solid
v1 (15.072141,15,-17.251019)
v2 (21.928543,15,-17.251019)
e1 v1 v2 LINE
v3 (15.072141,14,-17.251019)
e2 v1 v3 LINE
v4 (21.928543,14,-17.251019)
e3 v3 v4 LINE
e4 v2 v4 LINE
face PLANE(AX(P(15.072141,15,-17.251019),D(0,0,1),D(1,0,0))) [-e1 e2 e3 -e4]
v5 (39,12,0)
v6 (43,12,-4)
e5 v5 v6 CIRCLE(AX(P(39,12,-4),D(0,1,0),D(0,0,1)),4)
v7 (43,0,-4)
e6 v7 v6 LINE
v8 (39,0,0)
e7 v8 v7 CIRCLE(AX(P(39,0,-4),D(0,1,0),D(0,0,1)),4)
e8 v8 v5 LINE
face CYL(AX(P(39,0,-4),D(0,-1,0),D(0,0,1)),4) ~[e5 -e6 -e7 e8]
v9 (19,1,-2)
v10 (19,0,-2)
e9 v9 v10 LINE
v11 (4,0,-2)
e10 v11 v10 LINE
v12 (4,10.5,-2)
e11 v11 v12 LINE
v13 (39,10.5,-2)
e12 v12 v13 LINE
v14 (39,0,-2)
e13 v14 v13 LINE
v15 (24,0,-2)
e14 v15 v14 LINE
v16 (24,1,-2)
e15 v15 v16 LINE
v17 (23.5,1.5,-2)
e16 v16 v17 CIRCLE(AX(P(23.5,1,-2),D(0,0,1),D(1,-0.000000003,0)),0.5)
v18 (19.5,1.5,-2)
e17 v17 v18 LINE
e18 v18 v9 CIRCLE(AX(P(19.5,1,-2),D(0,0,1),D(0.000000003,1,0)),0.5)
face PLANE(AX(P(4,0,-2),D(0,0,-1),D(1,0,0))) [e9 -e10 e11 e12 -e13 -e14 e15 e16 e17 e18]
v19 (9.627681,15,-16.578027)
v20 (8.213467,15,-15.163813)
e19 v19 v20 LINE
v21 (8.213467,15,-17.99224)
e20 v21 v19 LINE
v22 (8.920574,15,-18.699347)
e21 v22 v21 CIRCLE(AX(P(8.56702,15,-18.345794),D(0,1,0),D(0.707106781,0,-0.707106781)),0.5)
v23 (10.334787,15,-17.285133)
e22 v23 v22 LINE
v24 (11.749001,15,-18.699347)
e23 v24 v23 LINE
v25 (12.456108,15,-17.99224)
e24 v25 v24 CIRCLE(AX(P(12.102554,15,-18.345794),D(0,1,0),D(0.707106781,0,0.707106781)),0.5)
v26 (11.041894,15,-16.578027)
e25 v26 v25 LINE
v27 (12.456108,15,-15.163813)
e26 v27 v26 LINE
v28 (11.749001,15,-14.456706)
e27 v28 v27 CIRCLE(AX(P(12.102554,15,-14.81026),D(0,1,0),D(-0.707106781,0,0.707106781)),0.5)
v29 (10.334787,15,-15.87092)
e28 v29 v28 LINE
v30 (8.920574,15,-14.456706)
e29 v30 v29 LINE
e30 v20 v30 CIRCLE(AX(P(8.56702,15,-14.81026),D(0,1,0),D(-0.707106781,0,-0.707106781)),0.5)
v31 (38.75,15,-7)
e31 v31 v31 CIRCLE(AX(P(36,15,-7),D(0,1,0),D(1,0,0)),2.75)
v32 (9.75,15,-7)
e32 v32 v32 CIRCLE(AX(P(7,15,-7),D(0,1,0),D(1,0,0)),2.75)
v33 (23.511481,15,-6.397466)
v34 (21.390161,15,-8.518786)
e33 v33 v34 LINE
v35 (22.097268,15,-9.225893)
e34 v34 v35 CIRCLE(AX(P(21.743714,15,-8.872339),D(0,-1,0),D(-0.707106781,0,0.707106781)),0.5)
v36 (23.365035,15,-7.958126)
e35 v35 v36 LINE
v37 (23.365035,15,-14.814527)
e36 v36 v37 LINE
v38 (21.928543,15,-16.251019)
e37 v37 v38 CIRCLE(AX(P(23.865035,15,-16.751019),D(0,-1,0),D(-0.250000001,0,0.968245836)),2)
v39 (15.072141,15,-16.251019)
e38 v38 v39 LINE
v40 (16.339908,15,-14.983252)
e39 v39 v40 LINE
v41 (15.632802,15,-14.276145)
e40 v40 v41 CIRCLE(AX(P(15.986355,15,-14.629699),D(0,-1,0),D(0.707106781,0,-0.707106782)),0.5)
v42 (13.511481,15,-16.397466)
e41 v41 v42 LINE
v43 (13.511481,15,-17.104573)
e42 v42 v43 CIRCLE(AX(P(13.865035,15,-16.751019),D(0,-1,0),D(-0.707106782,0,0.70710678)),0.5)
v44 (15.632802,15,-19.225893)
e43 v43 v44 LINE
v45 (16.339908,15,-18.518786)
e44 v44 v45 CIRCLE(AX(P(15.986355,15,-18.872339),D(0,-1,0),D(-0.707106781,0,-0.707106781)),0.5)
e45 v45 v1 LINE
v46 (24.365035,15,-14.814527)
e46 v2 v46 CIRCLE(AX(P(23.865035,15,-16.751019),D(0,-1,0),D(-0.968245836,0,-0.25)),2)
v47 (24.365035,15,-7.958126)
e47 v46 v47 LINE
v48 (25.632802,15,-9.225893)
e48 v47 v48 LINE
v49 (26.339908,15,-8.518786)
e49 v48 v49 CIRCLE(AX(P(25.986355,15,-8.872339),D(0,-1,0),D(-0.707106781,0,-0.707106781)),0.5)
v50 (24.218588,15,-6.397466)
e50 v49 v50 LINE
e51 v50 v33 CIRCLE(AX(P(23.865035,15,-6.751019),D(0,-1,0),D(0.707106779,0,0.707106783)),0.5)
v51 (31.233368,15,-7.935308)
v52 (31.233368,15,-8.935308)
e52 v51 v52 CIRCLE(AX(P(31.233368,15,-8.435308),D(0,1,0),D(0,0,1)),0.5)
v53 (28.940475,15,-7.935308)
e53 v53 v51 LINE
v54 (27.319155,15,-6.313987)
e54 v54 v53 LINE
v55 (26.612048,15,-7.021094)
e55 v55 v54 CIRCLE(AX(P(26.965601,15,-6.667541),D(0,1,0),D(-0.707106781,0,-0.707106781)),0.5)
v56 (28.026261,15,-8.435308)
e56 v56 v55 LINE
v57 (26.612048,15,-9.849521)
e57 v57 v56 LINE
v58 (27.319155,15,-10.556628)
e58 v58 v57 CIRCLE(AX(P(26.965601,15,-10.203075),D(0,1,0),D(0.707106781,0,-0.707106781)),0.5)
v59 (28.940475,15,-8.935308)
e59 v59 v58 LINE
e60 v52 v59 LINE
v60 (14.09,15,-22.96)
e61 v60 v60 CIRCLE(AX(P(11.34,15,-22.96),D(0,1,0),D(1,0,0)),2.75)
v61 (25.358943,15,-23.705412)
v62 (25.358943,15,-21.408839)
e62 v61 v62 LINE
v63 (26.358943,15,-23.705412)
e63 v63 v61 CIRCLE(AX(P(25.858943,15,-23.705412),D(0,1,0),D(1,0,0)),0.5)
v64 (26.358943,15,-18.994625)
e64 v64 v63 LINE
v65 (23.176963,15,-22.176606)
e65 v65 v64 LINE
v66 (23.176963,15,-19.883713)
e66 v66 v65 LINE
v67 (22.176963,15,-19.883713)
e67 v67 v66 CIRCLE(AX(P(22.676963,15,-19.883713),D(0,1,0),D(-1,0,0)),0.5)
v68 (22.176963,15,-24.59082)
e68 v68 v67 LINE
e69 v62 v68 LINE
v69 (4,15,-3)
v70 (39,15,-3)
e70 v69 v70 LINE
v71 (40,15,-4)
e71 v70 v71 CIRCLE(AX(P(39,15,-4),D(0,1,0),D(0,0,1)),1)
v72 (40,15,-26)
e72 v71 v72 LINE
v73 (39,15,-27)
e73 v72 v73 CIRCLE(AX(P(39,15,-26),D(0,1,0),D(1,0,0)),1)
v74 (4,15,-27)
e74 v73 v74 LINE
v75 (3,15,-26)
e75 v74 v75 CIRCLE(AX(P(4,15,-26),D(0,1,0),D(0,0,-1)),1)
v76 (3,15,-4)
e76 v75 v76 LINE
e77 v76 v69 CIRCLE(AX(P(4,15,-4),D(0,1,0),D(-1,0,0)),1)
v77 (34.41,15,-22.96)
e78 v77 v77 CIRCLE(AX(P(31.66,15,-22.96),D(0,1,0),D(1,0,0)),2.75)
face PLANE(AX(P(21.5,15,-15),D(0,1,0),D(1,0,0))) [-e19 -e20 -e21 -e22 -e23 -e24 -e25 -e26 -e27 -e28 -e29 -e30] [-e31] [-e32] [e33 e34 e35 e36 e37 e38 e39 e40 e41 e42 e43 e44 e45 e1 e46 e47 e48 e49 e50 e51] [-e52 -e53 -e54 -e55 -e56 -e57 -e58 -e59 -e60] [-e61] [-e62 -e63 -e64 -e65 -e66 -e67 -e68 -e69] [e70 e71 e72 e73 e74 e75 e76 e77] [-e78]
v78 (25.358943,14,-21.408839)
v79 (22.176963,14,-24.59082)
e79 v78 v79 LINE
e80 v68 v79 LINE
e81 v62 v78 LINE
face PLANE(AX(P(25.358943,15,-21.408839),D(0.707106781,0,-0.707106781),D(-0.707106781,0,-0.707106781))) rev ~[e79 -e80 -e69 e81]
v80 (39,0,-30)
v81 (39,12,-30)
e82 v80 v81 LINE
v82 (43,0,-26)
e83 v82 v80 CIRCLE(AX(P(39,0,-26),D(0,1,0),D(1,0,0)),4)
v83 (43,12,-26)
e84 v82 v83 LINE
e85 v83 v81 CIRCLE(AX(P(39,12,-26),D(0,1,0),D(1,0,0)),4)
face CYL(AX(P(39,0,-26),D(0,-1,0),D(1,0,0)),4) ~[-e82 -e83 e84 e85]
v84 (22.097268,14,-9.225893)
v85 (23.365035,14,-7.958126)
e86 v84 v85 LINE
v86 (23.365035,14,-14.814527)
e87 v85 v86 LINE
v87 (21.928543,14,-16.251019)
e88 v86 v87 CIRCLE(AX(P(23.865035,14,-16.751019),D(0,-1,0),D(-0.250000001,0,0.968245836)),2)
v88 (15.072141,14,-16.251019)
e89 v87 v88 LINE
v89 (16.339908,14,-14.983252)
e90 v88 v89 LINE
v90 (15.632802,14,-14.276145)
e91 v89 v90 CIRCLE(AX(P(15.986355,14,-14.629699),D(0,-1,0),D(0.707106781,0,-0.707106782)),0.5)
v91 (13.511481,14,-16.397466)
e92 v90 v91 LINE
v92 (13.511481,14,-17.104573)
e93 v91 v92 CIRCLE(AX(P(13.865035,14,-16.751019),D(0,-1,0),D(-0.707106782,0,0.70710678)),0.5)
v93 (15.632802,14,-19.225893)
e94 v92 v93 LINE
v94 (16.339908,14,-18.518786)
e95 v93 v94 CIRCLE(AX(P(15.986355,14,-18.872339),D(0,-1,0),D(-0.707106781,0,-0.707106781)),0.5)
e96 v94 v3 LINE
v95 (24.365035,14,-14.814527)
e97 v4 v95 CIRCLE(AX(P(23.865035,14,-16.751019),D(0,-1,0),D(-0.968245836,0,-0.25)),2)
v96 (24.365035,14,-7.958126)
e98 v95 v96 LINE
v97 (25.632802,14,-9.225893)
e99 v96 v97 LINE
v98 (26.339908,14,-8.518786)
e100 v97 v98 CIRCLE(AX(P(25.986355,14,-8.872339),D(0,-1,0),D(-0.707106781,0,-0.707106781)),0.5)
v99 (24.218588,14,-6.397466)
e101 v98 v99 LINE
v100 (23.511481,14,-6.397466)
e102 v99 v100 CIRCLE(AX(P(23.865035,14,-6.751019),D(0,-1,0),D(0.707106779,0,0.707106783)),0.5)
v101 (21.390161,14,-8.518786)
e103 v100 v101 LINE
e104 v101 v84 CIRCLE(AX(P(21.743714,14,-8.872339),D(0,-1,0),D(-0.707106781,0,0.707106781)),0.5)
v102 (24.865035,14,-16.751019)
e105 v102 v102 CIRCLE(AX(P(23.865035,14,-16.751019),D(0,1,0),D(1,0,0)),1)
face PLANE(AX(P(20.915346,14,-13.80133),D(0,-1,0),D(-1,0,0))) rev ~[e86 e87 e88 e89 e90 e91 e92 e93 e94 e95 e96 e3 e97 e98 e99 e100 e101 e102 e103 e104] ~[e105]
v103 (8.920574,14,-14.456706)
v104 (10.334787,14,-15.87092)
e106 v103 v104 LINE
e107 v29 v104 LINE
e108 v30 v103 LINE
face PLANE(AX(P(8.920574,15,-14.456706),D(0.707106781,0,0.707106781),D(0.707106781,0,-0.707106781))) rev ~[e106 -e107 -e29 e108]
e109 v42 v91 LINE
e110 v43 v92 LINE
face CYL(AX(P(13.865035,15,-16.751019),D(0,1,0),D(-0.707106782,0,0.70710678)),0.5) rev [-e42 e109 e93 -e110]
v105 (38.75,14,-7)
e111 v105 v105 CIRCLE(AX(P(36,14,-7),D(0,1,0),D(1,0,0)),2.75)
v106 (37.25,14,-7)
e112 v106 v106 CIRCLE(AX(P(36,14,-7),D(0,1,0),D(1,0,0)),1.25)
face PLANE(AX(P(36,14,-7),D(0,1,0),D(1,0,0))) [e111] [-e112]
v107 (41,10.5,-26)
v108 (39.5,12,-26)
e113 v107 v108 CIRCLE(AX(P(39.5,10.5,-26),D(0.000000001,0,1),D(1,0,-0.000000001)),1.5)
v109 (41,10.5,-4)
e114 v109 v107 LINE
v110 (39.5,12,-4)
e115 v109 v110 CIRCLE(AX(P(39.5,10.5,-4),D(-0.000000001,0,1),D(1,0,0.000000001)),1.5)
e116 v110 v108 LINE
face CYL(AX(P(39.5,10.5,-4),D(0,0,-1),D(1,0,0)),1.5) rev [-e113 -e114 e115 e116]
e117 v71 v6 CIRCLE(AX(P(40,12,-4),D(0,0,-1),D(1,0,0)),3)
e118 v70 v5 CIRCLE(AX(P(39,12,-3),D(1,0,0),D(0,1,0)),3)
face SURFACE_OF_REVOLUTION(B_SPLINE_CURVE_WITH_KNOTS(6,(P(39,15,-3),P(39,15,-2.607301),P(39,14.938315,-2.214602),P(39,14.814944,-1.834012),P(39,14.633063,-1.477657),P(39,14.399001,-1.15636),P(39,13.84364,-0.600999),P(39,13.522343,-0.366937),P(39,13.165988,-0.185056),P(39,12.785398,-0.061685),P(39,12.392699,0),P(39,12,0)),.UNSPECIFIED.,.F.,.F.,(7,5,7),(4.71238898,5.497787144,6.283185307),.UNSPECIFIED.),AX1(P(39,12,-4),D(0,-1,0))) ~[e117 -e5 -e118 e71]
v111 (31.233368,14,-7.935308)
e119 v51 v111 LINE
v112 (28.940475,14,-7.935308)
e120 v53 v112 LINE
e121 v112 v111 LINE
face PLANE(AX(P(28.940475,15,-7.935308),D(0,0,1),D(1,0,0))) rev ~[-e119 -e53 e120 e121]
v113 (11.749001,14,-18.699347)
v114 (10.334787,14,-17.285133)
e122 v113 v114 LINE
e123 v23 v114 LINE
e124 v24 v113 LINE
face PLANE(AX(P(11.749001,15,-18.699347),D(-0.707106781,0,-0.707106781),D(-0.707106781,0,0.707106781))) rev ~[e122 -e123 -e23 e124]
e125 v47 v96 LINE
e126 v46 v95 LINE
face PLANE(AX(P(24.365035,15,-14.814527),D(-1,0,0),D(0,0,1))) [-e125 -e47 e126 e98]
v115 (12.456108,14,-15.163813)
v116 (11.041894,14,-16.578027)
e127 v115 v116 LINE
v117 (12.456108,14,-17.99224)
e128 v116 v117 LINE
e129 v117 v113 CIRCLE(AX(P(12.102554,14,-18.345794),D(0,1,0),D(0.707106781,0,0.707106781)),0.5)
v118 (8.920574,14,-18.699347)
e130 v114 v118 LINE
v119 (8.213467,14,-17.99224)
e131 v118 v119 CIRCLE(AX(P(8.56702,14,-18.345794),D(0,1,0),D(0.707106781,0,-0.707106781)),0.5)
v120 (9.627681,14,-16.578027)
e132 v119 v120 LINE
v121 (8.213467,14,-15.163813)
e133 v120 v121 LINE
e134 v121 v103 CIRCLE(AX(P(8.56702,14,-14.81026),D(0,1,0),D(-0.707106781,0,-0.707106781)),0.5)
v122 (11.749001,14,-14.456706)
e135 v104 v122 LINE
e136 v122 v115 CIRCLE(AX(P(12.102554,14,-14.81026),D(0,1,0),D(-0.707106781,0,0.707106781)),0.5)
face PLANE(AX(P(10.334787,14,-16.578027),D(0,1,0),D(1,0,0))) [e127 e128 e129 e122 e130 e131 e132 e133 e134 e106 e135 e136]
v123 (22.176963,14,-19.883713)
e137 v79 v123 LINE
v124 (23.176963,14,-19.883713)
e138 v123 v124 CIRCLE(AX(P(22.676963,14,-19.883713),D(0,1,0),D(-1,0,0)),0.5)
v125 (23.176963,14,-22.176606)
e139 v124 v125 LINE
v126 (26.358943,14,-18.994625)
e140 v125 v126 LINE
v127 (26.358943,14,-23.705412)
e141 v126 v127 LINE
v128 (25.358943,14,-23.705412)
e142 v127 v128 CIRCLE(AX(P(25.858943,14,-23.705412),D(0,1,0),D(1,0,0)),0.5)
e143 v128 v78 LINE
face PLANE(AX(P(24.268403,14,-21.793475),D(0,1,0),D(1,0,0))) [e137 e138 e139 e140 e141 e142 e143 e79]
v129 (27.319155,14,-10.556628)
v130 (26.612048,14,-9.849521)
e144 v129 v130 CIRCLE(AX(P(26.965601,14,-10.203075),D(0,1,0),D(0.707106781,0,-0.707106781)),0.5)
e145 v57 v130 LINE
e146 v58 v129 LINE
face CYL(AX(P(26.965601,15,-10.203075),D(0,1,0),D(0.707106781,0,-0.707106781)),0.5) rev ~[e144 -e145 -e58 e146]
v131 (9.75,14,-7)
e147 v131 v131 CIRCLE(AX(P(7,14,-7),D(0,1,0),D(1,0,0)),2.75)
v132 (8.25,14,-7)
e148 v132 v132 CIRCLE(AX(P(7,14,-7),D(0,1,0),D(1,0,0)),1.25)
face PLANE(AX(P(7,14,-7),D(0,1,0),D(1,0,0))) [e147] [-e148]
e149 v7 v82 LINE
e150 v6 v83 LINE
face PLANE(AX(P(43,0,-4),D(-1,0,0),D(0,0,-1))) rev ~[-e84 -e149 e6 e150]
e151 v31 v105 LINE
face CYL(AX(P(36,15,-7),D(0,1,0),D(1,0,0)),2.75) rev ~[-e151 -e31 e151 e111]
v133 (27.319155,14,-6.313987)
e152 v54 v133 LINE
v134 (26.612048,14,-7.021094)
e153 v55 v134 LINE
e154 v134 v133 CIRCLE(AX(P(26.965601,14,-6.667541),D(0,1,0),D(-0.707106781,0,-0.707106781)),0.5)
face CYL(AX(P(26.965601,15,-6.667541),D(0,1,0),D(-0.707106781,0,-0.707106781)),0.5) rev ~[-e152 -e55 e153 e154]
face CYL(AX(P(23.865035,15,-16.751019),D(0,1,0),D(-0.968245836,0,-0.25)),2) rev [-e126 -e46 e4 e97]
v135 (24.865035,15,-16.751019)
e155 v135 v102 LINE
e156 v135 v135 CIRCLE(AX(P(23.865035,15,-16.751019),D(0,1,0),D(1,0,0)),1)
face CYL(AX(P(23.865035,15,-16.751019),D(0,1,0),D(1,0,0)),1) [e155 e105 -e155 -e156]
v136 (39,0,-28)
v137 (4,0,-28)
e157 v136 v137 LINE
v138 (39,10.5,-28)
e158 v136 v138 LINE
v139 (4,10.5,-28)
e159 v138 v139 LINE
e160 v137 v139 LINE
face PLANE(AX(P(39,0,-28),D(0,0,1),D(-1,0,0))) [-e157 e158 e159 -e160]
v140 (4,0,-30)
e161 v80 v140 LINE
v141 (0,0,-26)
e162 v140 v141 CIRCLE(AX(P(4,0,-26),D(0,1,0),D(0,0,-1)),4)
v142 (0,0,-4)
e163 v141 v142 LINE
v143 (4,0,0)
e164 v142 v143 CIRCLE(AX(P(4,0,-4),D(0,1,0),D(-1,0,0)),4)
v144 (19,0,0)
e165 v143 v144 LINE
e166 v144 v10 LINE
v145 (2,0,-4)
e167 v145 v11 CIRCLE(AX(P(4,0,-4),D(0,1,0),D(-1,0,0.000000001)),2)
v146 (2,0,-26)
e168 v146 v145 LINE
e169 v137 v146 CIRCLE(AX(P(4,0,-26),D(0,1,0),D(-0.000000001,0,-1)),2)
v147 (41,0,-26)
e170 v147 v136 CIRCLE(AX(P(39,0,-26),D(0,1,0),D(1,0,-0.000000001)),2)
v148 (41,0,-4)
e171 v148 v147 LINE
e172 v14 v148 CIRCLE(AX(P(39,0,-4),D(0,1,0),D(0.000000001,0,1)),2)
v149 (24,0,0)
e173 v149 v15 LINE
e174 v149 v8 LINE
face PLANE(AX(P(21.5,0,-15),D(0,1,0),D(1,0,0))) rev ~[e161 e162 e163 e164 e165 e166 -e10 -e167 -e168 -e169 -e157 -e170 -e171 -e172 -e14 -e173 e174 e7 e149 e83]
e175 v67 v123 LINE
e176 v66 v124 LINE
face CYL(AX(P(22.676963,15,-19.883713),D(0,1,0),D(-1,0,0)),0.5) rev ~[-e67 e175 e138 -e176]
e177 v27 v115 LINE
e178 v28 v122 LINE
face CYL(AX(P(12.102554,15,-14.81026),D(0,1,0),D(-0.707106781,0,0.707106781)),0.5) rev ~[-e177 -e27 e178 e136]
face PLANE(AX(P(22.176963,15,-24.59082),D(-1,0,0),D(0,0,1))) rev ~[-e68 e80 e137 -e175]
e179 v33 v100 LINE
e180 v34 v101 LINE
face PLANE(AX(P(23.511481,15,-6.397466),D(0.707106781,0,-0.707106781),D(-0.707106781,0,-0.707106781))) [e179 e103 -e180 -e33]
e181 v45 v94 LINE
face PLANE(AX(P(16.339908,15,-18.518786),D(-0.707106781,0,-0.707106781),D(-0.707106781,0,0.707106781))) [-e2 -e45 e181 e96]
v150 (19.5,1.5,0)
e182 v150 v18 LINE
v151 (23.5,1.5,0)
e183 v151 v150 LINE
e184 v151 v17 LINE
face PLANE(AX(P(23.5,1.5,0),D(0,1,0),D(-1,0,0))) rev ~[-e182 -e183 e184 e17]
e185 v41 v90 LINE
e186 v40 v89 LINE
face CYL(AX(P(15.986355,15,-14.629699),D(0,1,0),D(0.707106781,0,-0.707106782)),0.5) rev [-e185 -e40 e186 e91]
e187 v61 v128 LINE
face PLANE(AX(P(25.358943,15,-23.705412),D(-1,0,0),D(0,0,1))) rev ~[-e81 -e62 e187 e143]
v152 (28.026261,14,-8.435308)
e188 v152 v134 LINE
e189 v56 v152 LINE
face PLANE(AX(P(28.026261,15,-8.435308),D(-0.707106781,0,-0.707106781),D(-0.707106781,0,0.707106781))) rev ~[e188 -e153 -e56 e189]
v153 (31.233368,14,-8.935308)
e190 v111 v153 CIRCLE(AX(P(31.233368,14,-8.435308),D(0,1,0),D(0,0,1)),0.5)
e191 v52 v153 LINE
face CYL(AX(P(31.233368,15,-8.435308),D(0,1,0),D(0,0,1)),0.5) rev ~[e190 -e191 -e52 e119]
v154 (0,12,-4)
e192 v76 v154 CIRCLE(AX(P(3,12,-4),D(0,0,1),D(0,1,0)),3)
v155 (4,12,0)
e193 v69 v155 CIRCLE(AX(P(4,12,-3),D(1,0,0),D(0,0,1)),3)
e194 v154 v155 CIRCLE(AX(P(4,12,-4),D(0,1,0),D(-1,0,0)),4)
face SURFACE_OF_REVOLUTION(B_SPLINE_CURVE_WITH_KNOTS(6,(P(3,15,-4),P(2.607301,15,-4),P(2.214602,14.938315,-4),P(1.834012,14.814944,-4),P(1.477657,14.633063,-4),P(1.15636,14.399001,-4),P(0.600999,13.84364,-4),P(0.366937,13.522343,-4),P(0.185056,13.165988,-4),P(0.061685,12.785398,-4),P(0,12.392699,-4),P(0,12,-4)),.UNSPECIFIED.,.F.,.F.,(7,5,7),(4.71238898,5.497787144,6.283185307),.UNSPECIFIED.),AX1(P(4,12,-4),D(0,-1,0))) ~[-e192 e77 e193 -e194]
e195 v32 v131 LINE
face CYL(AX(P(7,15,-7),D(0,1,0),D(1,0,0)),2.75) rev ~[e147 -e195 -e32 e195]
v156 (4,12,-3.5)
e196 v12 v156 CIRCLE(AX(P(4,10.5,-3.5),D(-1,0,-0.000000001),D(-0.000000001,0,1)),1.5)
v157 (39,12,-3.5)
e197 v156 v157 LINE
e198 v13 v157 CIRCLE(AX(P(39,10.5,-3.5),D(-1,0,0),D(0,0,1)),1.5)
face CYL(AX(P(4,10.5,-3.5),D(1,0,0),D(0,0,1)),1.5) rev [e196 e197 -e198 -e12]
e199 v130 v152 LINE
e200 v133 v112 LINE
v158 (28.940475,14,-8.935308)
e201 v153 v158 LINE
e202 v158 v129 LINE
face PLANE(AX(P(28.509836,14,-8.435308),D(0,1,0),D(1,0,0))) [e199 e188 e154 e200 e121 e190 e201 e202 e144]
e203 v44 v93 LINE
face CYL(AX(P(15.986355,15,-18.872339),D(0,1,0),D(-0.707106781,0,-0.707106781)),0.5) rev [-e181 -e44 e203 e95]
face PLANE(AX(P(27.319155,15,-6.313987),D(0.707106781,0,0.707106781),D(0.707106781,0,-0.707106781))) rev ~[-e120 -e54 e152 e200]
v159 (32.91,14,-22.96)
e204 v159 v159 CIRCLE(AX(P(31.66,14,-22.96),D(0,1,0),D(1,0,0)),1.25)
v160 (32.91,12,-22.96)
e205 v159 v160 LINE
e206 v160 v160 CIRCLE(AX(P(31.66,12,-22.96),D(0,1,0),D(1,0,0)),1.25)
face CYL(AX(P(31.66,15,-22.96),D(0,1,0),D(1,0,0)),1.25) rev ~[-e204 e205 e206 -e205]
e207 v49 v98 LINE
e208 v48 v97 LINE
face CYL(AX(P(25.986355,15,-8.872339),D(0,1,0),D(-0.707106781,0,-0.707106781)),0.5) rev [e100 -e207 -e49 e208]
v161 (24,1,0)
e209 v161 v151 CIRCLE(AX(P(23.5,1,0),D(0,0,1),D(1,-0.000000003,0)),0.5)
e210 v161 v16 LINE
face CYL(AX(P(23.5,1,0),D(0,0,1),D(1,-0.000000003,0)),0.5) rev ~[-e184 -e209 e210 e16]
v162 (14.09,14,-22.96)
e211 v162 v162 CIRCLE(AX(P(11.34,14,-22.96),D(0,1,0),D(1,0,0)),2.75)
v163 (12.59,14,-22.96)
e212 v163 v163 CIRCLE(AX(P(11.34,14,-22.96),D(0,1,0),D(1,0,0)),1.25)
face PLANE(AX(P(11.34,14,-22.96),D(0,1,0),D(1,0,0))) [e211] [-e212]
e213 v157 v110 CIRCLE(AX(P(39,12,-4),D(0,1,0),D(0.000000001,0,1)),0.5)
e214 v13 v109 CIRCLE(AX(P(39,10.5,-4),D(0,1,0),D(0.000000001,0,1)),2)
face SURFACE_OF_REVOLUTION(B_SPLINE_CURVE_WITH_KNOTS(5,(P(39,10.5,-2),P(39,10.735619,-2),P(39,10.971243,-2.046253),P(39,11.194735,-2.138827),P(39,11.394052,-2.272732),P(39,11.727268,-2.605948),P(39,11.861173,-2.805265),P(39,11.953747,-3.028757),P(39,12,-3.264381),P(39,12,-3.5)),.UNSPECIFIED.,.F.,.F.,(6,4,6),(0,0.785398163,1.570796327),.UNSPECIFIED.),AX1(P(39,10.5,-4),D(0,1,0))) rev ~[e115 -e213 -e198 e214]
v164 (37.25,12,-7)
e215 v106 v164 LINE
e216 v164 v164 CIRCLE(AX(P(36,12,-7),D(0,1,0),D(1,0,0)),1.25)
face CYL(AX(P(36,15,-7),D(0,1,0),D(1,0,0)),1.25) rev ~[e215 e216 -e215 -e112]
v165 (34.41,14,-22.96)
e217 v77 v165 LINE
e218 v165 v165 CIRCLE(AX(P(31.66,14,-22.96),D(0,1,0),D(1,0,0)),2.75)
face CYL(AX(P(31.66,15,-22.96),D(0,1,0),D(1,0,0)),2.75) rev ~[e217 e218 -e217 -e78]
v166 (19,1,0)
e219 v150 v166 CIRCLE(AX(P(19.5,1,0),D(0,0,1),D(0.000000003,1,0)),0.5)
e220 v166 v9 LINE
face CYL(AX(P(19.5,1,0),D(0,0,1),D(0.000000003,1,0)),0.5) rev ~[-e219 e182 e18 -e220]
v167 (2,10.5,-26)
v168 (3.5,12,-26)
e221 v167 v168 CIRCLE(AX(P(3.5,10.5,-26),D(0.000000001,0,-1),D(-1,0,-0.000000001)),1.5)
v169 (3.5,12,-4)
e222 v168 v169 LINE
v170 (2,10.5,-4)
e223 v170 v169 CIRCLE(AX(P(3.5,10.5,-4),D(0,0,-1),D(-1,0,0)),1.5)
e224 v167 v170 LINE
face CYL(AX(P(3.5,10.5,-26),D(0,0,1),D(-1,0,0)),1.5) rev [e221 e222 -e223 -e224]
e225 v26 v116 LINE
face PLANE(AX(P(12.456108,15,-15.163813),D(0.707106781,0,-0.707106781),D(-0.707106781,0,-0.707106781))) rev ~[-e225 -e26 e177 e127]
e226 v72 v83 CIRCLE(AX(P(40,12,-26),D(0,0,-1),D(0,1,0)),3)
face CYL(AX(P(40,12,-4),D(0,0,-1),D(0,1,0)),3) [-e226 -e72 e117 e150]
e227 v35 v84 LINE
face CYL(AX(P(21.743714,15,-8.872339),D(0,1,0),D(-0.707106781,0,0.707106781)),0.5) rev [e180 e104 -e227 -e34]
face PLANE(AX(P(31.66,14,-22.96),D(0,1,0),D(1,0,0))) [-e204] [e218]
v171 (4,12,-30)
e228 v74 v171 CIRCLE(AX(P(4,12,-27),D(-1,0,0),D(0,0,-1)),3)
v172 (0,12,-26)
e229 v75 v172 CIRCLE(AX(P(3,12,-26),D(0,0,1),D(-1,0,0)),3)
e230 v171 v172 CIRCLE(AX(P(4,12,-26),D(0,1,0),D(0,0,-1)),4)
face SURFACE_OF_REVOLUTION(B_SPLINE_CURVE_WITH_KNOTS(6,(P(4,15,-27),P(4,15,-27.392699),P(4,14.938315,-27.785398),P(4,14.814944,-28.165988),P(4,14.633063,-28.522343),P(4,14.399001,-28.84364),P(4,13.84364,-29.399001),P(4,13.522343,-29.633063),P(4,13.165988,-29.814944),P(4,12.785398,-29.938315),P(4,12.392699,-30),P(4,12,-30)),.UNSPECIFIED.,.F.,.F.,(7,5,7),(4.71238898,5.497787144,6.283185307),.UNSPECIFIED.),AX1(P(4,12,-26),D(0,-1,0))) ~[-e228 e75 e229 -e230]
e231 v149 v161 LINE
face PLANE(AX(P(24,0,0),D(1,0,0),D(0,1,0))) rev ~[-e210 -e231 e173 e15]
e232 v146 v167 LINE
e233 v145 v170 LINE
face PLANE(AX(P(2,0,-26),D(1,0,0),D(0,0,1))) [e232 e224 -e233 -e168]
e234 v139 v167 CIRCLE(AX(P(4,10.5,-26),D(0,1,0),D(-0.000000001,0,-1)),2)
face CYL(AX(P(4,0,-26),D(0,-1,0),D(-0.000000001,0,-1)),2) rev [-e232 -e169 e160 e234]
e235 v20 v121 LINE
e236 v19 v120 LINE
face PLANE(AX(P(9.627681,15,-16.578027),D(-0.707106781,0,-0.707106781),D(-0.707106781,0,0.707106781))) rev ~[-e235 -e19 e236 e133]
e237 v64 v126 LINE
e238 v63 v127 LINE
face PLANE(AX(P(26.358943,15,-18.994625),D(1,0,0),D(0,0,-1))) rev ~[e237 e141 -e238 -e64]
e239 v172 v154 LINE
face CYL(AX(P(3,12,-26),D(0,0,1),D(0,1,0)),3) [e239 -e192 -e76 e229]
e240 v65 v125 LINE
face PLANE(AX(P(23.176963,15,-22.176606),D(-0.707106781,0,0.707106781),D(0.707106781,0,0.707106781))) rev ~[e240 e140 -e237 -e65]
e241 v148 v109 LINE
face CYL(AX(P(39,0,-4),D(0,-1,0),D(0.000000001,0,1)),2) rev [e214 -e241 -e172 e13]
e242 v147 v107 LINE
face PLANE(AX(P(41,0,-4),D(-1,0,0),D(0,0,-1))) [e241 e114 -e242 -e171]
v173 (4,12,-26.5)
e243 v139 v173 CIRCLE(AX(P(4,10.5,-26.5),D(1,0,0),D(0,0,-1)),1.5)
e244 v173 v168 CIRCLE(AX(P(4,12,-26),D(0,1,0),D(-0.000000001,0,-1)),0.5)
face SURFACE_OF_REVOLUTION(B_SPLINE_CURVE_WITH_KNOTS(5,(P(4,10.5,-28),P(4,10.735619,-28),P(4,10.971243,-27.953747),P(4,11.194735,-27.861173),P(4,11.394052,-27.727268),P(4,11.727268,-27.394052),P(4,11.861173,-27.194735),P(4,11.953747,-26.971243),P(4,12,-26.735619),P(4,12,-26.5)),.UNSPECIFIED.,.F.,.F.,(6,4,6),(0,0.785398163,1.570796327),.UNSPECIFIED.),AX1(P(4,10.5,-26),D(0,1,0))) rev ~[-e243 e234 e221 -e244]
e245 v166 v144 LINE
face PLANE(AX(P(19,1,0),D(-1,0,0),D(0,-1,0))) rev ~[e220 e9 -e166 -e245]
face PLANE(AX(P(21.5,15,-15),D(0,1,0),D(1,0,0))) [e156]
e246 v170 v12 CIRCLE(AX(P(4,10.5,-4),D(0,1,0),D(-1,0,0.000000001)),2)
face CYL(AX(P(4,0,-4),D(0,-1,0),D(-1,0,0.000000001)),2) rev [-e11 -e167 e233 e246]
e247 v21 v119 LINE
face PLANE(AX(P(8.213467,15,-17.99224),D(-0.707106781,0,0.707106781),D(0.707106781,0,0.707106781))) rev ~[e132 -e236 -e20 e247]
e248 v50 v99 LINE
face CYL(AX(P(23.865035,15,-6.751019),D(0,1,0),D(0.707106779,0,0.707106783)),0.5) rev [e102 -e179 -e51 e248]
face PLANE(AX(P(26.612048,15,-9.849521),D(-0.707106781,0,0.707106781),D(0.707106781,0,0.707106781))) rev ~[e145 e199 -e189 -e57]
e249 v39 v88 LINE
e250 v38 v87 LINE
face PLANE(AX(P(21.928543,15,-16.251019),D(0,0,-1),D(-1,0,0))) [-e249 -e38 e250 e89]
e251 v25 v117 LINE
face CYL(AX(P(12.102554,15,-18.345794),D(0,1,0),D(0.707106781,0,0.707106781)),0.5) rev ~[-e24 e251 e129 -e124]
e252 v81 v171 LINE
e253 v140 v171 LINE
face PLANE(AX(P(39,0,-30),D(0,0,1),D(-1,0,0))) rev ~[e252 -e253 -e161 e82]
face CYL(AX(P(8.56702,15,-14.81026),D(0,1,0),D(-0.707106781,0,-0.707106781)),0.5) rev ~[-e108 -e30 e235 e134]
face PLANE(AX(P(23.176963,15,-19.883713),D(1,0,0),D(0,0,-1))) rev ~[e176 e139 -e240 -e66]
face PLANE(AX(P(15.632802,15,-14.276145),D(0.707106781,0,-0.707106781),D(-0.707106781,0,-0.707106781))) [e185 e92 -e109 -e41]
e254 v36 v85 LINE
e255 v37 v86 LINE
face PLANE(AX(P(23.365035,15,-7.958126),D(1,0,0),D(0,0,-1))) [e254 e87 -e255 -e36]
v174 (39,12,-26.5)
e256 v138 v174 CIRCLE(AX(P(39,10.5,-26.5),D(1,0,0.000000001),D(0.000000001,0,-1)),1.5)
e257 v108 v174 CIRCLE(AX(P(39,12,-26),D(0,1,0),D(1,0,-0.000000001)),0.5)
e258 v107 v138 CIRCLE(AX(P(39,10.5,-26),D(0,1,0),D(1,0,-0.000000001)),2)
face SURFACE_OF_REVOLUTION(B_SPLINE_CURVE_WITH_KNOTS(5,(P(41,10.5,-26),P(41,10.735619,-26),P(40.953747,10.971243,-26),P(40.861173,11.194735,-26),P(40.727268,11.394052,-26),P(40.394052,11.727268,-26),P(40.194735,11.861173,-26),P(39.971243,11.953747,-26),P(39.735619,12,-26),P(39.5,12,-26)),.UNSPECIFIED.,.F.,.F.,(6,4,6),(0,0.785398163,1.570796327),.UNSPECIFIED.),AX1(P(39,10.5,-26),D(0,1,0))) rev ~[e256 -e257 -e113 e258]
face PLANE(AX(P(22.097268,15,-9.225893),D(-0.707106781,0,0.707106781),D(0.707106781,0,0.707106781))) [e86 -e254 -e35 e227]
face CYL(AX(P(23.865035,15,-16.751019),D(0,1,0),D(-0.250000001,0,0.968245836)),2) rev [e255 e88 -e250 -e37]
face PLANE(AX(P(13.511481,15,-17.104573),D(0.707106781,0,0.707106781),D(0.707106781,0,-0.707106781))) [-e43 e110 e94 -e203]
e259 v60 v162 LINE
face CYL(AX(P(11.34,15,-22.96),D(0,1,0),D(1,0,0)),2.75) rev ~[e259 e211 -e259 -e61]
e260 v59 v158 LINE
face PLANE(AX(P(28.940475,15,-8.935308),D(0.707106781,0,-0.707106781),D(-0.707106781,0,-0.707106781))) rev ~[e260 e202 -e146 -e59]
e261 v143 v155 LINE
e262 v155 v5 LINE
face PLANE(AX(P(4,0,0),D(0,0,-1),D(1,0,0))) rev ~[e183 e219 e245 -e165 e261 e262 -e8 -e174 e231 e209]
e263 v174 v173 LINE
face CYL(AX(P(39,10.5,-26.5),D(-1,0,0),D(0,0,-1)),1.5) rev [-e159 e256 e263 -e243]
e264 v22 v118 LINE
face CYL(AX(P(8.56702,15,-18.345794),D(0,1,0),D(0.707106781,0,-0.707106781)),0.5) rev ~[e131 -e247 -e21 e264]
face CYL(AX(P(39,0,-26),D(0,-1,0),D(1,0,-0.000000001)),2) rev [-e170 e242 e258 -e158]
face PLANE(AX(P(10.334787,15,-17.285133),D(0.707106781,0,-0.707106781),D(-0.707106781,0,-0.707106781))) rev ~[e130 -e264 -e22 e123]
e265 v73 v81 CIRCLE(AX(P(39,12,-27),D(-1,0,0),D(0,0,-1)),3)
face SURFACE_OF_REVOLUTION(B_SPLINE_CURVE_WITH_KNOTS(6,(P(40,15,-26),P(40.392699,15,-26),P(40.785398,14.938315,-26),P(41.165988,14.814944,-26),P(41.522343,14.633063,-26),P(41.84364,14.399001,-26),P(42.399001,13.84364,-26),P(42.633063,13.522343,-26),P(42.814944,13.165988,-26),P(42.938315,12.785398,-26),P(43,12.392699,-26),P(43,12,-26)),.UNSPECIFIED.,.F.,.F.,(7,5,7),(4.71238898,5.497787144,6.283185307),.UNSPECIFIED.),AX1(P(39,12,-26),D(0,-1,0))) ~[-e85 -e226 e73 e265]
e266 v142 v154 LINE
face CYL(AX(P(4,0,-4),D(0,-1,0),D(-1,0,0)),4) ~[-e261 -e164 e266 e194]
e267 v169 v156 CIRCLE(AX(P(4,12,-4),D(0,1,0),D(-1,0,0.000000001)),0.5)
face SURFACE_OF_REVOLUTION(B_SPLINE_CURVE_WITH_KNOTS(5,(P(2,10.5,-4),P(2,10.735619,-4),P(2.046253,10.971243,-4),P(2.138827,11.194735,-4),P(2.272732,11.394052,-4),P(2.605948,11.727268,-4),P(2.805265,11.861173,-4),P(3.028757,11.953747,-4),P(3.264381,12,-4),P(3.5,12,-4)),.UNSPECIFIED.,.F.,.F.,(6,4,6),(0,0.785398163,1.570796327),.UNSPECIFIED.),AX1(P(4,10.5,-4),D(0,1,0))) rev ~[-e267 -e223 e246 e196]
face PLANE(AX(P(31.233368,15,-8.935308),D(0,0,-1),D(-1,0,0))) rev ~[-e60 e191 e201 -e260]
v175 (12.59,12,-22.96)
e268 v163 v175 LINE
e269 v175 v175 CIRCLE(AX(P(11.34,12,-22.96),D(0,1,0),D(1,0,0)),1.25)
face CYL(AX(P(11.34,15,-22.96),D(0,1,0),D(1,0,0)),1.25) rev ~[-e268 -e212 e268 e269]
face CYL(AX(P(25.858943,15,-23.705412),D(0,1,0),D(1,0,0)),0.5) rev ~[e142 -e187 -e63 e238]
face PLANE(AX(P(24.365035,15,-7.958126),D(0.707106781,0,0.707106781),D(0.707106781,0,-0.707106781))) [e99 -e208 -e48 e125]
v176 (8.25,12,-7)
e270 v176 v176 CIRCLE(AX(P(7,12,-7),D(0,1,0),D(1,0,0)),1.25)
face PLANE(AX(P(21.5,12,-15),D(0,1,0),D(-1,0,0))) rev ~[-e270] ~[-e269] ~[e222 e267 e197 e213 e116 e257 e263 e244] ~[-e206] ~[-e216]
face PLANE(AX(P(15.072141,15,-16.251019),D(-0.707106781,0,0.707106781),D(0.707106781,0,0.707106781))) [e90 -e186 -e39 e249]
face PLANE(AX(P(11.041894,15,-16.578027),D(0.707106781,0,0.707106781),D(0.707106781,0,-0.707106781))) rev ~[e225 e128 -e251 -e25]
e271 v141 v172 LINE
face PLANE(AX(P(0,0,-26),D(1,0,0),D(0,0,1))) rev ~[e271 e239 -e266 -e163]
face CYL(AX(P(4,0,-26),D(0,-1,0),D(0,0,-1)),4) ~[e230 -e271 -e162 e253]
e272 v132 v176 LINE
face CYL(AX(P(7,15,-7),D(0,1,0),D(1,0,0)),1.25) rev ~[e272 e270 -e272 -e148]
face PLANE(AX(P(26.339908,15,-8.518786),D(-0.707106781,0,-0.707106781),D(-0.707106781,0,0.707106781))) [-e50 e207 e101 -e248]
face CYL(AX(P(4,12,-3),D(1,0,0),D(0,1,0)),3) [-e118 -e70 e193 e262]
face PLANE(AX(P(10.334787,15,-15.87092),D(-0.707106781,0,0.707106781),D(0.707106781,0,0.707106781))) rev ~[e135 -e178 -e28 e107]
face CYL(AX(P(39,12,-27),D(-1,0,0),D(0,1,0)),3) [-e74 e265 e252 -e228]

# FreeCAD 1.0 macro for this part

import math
import FreeCAD as App
import Part
import Sketcher

V = App.Vector
Q = App.Units.Quantity


def edges_at(feature, points):
    """Names of the edges that pass closest to the given points."""
    edges = feature.Shape.Edges
    near = lambda p: min(range(len(edges)), key=lambda i: edges[i].distToShape(Part.Vertex(*p))[0])
    return sorted({f"Edge{near(p) + 1}" for p in points})

doc = App.newDocument("Part")
body = doc.addObject("PartDesign::Body", "Body")

# Sketch on XZ plane
sketch1 = body.newObject("Sketcher::SketchObject", "Sketch")
sketch1.AttachmentSupport = (doc.getObject("XZ_Plane"), [""])
sketch1.MapMode = "FlatFace"
sketch1.addGeometry([
    Part.LineSegment(V(4, 0, 0), V(39, 0, 0)),  # 0
    Part.ArcOfCircle(Part.Circle(V(39, -4, 0), V(0, 0, 1), 4), math.radians(0), math.radians(90)),  # 1
    Part.LineSegment(V(43, -4, 0), V(43, -26, 0)),  # 2
    Part.ArcOfCircle(Part.Circle(V(39, -26, 0), V(0, 0, 1), 4), math.radians(-90), math.radians(0)),  # 3
    Part.LineSegment(V(39, -30, 0), V(4, -30, 0)),  # 4
    Part.ArcOfCircle(Part.Circle(V(4, -26, 0), V(0, 0, 1), 4), math.radians(180), math.radians(270)),  # 5
    Part.LineSegment(V(0, -26, 0), V(0, -4, 0)),  # 6
    Part.ArcOfCircle(Part.Circle(V(4, -4, 0), V(0, 0, 1), 4), math.radians(90), math.radians(180)),  # 7
], False)
sketch1.addConstraint([
    Sketcher.Constraint("Tangent", 0, 2, 1, 2),
    Sketcher.Constraint("Tangent", 1, 1, 2, 1),
    Sketcher.Constraint("Tangent", 2, 2, 3, 2),
    Sketcher.Constraint("Tangent", 3, 1, 4, 1),
    Sketcher.Constraint("Tangent", 4, 2, 5, 2),
    Sketcher.Constraint("Tangent", 5, 1, 6, 1),
    Sketcher.Constraint("Tangent", 6, 2, 7, 2),
    Sketcher.Constraint("Tangent", 7, 1, 0, 1),
    Sketcher.Constraint("Horizontal", 0),
    Sketcher.Constraint("Vertical", 2),
    Sketcher.Constraint("Horizontal", 4),
    Sketcher.Constraint("Vertical", 6),
    Sketcher.Constraint("Equal", 1, 3),
    Sketcher.Constraint("Equal", 3, 5),
    Sketcher.Constraint("Equal", 5, 7),
    Sketcher.Constraint("PointOnObject", 0, 2, -1),
    Sketcher.Constraint("PointOnObject", 5, 1, -2),
    Sketcher.Constraint("Radius", 1, Q("4 mm")),
    Sketcher.Constraint("DistanceX", 0, 1, 0, 2, Q("35 mm")),
    Sketcher.Constraint("DistanceY", 2, 2, 2, 1, Q("22 mm")),
])
pad1 = body.newObject("PartDesign::Pad", "Pad")
pad1.Profile = sketch1
pad1.Length = 15
pad1.Reversed = True

# Sketch on XZ plane
sketch2 = body.newObject("Sketcher::SketchObject", "Sketch001")
sketch2.AttachmentSupport = (doc.getObject("XZ_Plane"), [""])
sketch2.MapMode = "FlatFace"
sketch2.addGeometry([
    Part.LineSegment(V(39, -2, 0), V(4, -2, 0)),  # 0
    Part.ArcOfCircle(Part.Circle(V(4, -4, 0), V(0, 0, 1), 2), math.radians(90), math.radians(180)),  # 1
    Part.LineSegment(V(2, -4, 0), V(2, -26, 0)),  # 2
    Part.ArcOfCircle(Part.Circle(V(4, -26, 0), V(0, 0, 1), 2), math.radians(-180), math.radians(-90)),  # 3
    Part.LineSegment(V(4, -28, 0), V(39, -28, 0)),  # 4
    Part.ArcOfCircle(Part.Circle(V(39, -26, 0), V(0, 0, 1), 2), math.radians(-90), math.radians(0)),  # 5
    Part.LineSegment(V(41, -26, 0), V(41, -4, 0)),  # 6
    Part.ArcOfCircle(Part.Circle(V(39, -4, 0), V(0, 0, 1), 2), math.radians(0), math.radians(90)),  # 7
], False)
sketch2.addConstraint([
    Sketcher.Constraint("Tangent", 0, 2, 1, 1),
    Sketcher.Constraint("Tangent", 1, 2, 2, 1),
    Sketcher.Constraint("Tangent", 2, 2, 3, 1),
    Sketcher.Constraint("Tangent", 3, 2, 4, 1),
    Sketcher.Constraint("Tangent", 4, 2, 5, 1),
    Sketcher.Constraint("Tangent", 5, 2, 6, 1),
    Sketcher.Constraint("Tangent", 6, 2, 7, 1),
    Sketcher.Constraint("Tangent", 7, 2, 0, 1),
    Sketcher.Constraint("Horizontal", 0),
    Sketcher.Constraint("Vertical", 2),
    Sketcher.Constraint("Horizontal", 4),
    Sketcher.Constraint("Vertical", 6),
    Sketcher.Constraint("Equal", 1, 3),
    Sketcher.Constraint("Equal", 3, 5),
    Sketcher.Constraint("Equal", 5, 7),
    Sketcher.Constraint("Radius", 1, Q("2 mm")),
    Sketcher.Constraint("DistanceX", 0, 2, 0, 1, Q("35 mm")),
    Sketcher.Constraint("DistanceY", 2, 2, 2, 1, Q("22 mm")),
    Sketcher.Constraint("DistanceX", -1, 1, 1, 3, Q("4 mm")),
    Sketcher.Constraint("DistanceY", 1, 3, -1, 1, Q("4 mm")),
])
pocket1 = body.newObject("PartDesign::Pocket", "Pocket")
pocket1.Profile = sketch2
pocket1.Length = 12
doc.recompute()

fillet = body.newObject("PartDesign::Fillet", "Fillet")
fillet.Base = (pocket1, edges_at(pocket1, [
    (1.172, 15, -28.828),
    (0, 15, -15),
    (1.172, 15, -1.172),
    (21.5, 15, 0),
    (41.828, 15, -1.172),
    (43, 15, -15),
    (41.828, 15, -28.828),
    (21.5, 15, -30),
]))
fillet.Radius = 3
doc.recompute()

fillet2 = body.newObject("PartDesign::Fillet", "Fillet001")
fillet2.Base = (fillet, edges_at(fillet, [
    (40.414, 12, -27.414),
    (21.5, 12, -28),
    (2.586, 12, -27.414),
    (2, 12, -15),
    (2.586, 12, -2.586),
    (21.5, 12, -2),
    (40.414, 12, -2.586),
    (41, 12, -15),
]))
fillet2.Radius = 1.5

# Sketch on XZ plane
sketch3 = body.newObject("Sketcher::SketchObject", "Sketch002")
sketch3.AttachmentSupport = (doc.getObject("XZ_Plane"), [""])
sketch3.MapMode = "FlatFace"
sketch3.AttachmentOffset = App.Placement(V(0, 0, -15), App.Rotation())
sketch3.addGeometry([
    Part.LineSegment(V(24.4, -8, 0), V(24.4, -14.8, 0)),  # 0
    Part.ArcOfCircle(Part.Circle(V(23.9, -16.8, 0), V(0, 0, 1), 2), math.radians(-166), math.radians(76)),  # 1
    Part.LineSegment(V(21.9, -17.3, 0), V(15.1, -17.3, 0)),  # 2
    Part.LineSegment(V(15.1, -17.3, 0), V(16.3, -18.5, 0)),  # 3
    Part.ArcOfCircle(Part.Circle(V(16, -18.9, 0), V(0, 0, 1), 0.5), math.radians(-135), math.radians(45)),  # 4
    Part.LineSegment(V(15.6, -19.2, 0), V(13.5, -17.1, 0)),  # 5
    Part.ArcOfCircle(Part.Circle(V(13.9, -16.8, 0), V(0, 0, 1), 0.5), math.radians(135), math.radians(225)),  # 6
    Part.LineSegment(V(13.5, -16.4, 0), V(15.6, -14.3, 0)),  # 7
    Part.ArcOfCircle(Part.Circle(V(16, -14.6, 0), V(0, 0, 1), 0.5), math.radians(-45), math.radians(135)),  # 8
    Part.LineSegment(V(16.3, -15, 0), V(15.1, -16.3, 0)),  # 9
    Part.LineSegment(V(15.1, -16.3, 0), V(21.9, -16.3, 0)),  # 10
    Part.ArcOfCircle(Part.Circle(V(23.9, -16.8, 0), V(0, 0, 1), 2), math.radians(104), math.radians(166)),  # 11
    Part.LineSegment(V(23.4, -14.8, 0), V(23.4, -8, 0)),  # 12
    Part.LineSegment(V(23.4, -8, 0), V(22.1, -9.2, 0)),  # 13
    Part.ArcOfCircle(Part.Circle(V(21.7, -8.9, 0), V(0, 0, 1), 0.5), math.radians(135), math.radians(315)),  # 14
    Part.LineSegment(V(21.4, -8.5, 0), V(23.5, -6.4, 0)),  # 15
    Part.ArcOfCircle(Part.Circle(V(23.9, -6.8, 0), V(0, 0, 1), 0.5), math.radians(45), math.radians(135)),  # 16
    Part.LineSegment(V(24.2, -6.4, 0), V(26.3, -8.5, 0)),  # 17
    Part.ArcOfCircle(Part.Circle(V(26, -8.9, 0), V(0, 0, 1), 0.5), math.radians(-135), math.radians(45)),  # 18
    Part.LineSegment(V(25.6, -9.2, 0), V(24.4, -8, 0)),  # 19
    Part.Circle(V(23.9, -16.8, 0), V(0, 0, 1), 1),  # 20
    Part.LineSegment(V(26.4, -19, 0), V(26.4, -23.7, 0)),  # 21
    Part.ArcOfCircle(Part.Circle(V(25.9, -23.7, 0), V(0, 0, 1), 0.5), math.radians(180), math.radians(360)),  # 22
    Part.LineSegment(V(25.4, -23.7, 0), V(25.4, -21.4, 0)),  # 23
    Part.LineSegment(V(25.4, -21.4, 0), V(22.2, -24.6, 0)),  # 24
    Part.LineSegment(V(22.2, -24.6, 0), V(22.2, -19.9, 0)),  # 25
    Part.ArcOfCircle(Part.Circle(V(22.7, -19.9, 0), V(0, 0, 1), 0.5), math.radians(0), math.radians(180)),  # 26
    Part.LineSegment(V(23.2, -19.9, 0), V(23.2, -22.2, 0)),  # 27
    Part.LineSegment(V(23.2, -22.2, 0), V(26.4, -19, 0)),  # 28
    Part.LineSegment(V(28.9, -7.9, 0), V(31.2, -7.9, 0)),  # 29
    Part.ArcOfCircle(Part.Circle(V(31.2, -8.4, 0), V(0, 0, 1), 0.5), math.radians(-90), math.radians(90)),  # 30
    Part.LineSegment(V(31.2, -8.9, 0), V(28.9, -8.9, 0)),  # 31
    Part.LineSegment(V(28.9, -8.9, 0), V(27.3, -10.6, 0)),  # 32
    Part.ArcOfCircle(Part.Circle(V(27, -10.2, 0), V(0, 0, 1), 0.5), math.radians(135), math.radians(315)),  # 33
    Part.LineSegment(V(26.6, -9.8, 0), V(28, -8.4, 0)),  # 34
    Part.LineSegment(V(28, -8.4, 0), V(26.6, -7, 0)),  # 35
    Part.ArcOfCircle(Part.Circle(V(27, -6.7, 0), V(0, 0, 1), 0.5), math.radians(45), math.radians(225)),  # 36
    Part.LineSegment(V(27.3, -6.3, 0), V(28.9, -7.9, 0)),  # 37
    Part.LineSegment(V(10.3, -15.9, 0), V(11.7, -14.5, 0)),  # 38
    Part.ArcOfCircle(Part.Circle(V(12.1, -14.8, 0), V(0, 0, 1), 0.5), math.radians(-45), math.radians(135)),  # 39
    Part.LineSegment(V(12.5, -15.2, 0), V(11, -16.6, 0)),  # 40
    Part.LineSegment(V(11, -16.6, 0), V(12.5, -18, 0)),  # 41
    Part.ArcOfCircle(Part.Circle(V(12.1, -18.3, 0), V(0, 0, 1), 0.5), math.radians(-135), math.radians(45)),  # 42
    Part.LineSegment(V(11.7, -18.7, 0), V(10.3, -17.3, 0)),  # 43
    Part.LineSegment(V(10.3, -17.3, 0), V(8.9, -18.7, 0)),  # 44
    Part.ArcOfCircle(Part.Circle(V(8.6, -18.3, 0), V(0, 0, 1), 0.5), math.radians(135), math.radians(315)),  # 45
    Part.LineSegment(V(8.2, -18, 0), V(9.6, -16.6, 0)),  # 46
    Part.LineSegment(V(9.6, -16.6, 0), V(8.2, -15.2, 0)),  # 47
    Part.ArcOfCircle(Part.Circle(V(8.6, -14.8, 0), V(0, 0, 1), 0.5), math.radians(45), math.radians(225)),  # 48
    Part.LineSegment(V(8.9, -14.5, 0), V(10.3, -15.9, 0)),  # 49
], False)
sketch3.addConstraint([
    Sketcher.Constraint("Coincident", 0, 2, 1, 2),
    Sketcher.Constraint("Coincident", 1, 1, 2, 1),
    Sketcher.Constraint("Coincident", 2, 2, 3, 1),
    Sketcher.Constraint("Tangent", 3, 2, 4, 2),
    Sketcher.Constraint("Tangent", 4, 1, 5, 1),
    Sketcher.Constraint("Tangent", 5, 2, 6, 2),
    Sketcher.Constraint("Tangent", 6, 1, 7, 1),
    Sketcher.Constraint("Tangent", 7, 2, 8, 2),
    Sketcher.Constraint("Tangent", 8, 1, 9, 1),
    Sketcher.Constraint("Coincident", 9, 2, 10, 1),
    Sketcher.Constraint("Coincident", 10, 2, 11, 2),
    Sketcher.Constraint("Coincident", 11, 1, 12, 1),
    Sketcher.Constraint("Coincident", 12, 2, 13, 1),
    Sketcher.Constraint("Tangent", 13, 2, 14, 2),
    Sketcher.Constraint("Tangent", 14, 1, 15, 1),
    Sketcher.Constraint("Tangent", 15, 2, 16, 2),
    Sketcher.Constraint("Tangent", 16, 1, 17, 1),
    Sketcher.Constraint("Tangent", 17, 2, 18, 2),
    Sketcher.Constraint("Tangent", 18, 1, 19, 1),
    Sketcher.Constraint("Coincident", 19, 2, 0, 1),
    Sketcher.Constraint("Tangent", 21, 2, 22, 2),
    Sketcher.Constraint("Tangent", 22, 1, 23, 1),
    Sketcher.Constraint("Coincident", 23, 2, 24, 1),
    Sketcher.Constraint("Coincident", 24, 2, 25, 1),
    Sketcher.Constraint("Tangent", 25, 2, 26, 2),
    Sketcher.Constraint("Tangent", 26, 1, 27, 1),
    Sketcher.Constraint("Coincident", 27, 2, 28, 1),
    Sketcher.Constraint("Coincident", 28, 2, 21, 1),
    Sketcher.Constraint("Tangent", 29, 2, 30, 2),
    Sketcher.Constraint("Tangent", 30, 1, 31, 1),
    Sketcher.Constraint("Coincident", 31, 2, 32, 1),
    Sketcher.Constraint("Tangent", 32, 2, 33, 2),
    Sketcher.Constraint("Tangent", 33, 1, 34, 1),
    Sketcher.Constraint("Coincident", 34, 2, 35, 1),
    Sketcher.Constraint("Tangent", 35, 2, 36, 2),
    Sketcher.Constraint("Tangent", 36, 1, 37, 1),
    Sketcher.Constraint("Coincident", 37, 2, 29, 1),
    Sketcher.Constraint("Tangent", 38, 2, 39, 2),
    Sketcher.Constraint("Tangent", 39, 1, 40, 1),
    Sketcher.Constraint("Coincident", 40, 2, 41, 1),
    Sketcher.Constraint("Tangent", 41, 2, 42, 2),
    Sketcher.Constraint("Tangent", 42, 1, 43, 1),
    Sketcher.Constraint("Coincident", 43, 2, 44, 1),
    Sketcher.Constraint("Tangent", 44, 2, 45, 2),
    Sketcher.Constraint("Tangent", 45, 1, 46, 1),
    Sketcher.Constraint("Coincident", 46, 2, 47, 1),
    Sketcher.Constraint("Tangent", 47, 2, 48, 2),
    Sketcher.Constraint("Tangent", 48, 1, 49, 1),
    Sketcher.Constraint("Coincident", 49, 2, 38, 1),
    Sketcher.Constraint("Vertical", 0),
    Sketcher.Constraint("Horizontal", 2),
    Sketcher.Constraint("Horizontal", 10),
    Sketcher.Constraint("Vertical", 12),
    Sketcher.Constraint("Vertical", 21),
    Sketcher.Constraint("Vertical", 23),
    Sketcher.Constraint("Vertical", 25),
    Sketcher.Constraint("Vertical", 27),
    Sketcher.Constraint("Horizontal", 29),
    Sketcher.Constraint("Horizontal", 31),
    Sketcher.Constraint("Coincident", 11, 3, 1, 3),
    Sketcher.Constraint("Coincident", 20, 3, 1, 3),
    Sketcher.Constraint("Equal", 4, 6),
    Sketcher.Constraint("Equal", 6, 8),
    Sketcher.Constraint("Equal", 1, 11),
    Sketcher.Constraint("Equal", 8, 14),
    Sketcher.Constraint("Equal", 14, 16),
    Sketcher.Constraint("Equal", 16, 18),
    Sketcher.Constraint("Equal", 18, 22),
    Sketcher.Constraint("Equal", 22, 26),
    Sketcher.Constraint("Equal", 26, 30),
    Sketcher.Constraint("Equal", 30, 33),
    Sketcher.Constraint("Equal", 33, 36),
    Sketcher.Constraint("Equal", 36, 39),
    Sketcher.Constraint("Equal", 39, 42),
    Sketcher.Constraint("Equal", 42, 45),
    Sketcher.Constraint("Equal", 45, 48),
    Sketcher.Constraint("Parallel", 3, 5),
    Sketcher.Constraint("Perpendicular", 5, 7),
    Sketcher.Constraint("Parallel", 7, 9),
    Sketcher.Constraint("Parallel", 9, 13),
    Sketcher.Constraint("Parallel", 13, 15),
    Sketcher.Constraint("Perpendicular", 15, 17),
    Sketcher.Constraint("Parallel", 17, 19),
    Sketcher.Constraint("Perpendicular", 19, 24),
    Sketcher.Constraint("Parallel", 24, 28),
    Sketcher.Constraint("Parallel", 28, 32),
    Sketcher.Constraint("Parallel", 32, 34),
    Sketcher.Constraint("Perpendicular", 34, 35),
    Sketcher.Constraint("Parallel", 35, 37),
    Sketcher.Constraint("Perpendicular", 37, 38),
    Sketcher.Constraint("Parallel", 38, 40),
    Sketcher.Constraint("Perpendicular", 40, 41),
    Sketcher.Constraint("Parallel", 41, 43),
    Sketcher.Constraint("Perpendicular", 43, 44),
    Sketcher.Constraint("Parallel", 44, 46),
    Sketcher.Constraint("Perpendicular", 46, 47),
    Sketcher.Constraint("Parallel", 47, 49),
    Sketcher.Constraint("Horizontal", 1, 3, 6, 3),
    Sketcher.Constraint("Horizontal", 14, 3, 18, 3),
    Sketcher.Constraint("Horizontal", 42, 3, 45, 3),
    Sketcher.Constraint("Horizontal", 39, 3, 48, 3),
    Sketcher.Constraint("Horizontal", 0, 2, 11, 1),
    Sketcher.Constraint("Horizontal", 15, 2, 16, 1),
    Sketcher.Constraint("Horizontal", 12, 2, 19, 2),
    Sketcher.Constraint("Horizontal", 30, 3, 34, 2),
    Sketcher.Constraint("Horizontal", 40, 2, 46, 2),
    Sketcher.Constraint("Vertical", 4, 3, 8, 3),
    Sketcher.Constraint("Vertical", 33, 3, 36, 3),
    Sketcher.Constraint("Vertical", 39, 3, 42, 3),
    Sketcher.Constraint("Vertical", 2, 2, 9, 2),
    Sketcher.Constraint("Equal", 10, 0),
    Sketcher.Constraint("Equal", 31, 27),
    Sketcher.Constraint("Equal", 9, 13),
    Sketcher.Constraint("Equal", 7, 15),
    Sketcher.Constraint("Equal", 35, 38),
    Sketcher.Constraint("Equal", 38, 40),
    Sketcher.Constraint("Diameter", 20, Q("2 mm")),
    Sketcher.Constraint("Radius", 1, Q("2 mm")),
    Sketcher.Constraint("Radius", 4, Q("0.5 mm")),
    Sketcher.Constraint("Distance", 5, Q("3 mm")),
    Sketcher.Constraint("Distance", 34, Q("2 mm")),
    Sketcher.Constraint("Distance", 24, Q("4.5 mm")),
    Sketcher.Constraint("DistanceX", 2, 2, 2, 1, Q("6.856402 mm")),
    Sketcher.Constraint("DistanceX", -1, 1, 38, 2, Q("11.749001 mm")),
    Sketcher.Constraint("DistanceY", 8, 3, -1, 1, Q("14.629699 mm")),
    Sketcher.Constraint("DistanceX", -1, 1, 33, 3, Q("26.965601 mm")),
    Sketcher.Constraint("DistanceX", -1, 1, 4, 1, Q("15.632802 mm")),
    Sketcher.Constraint("DistanceX", -1, 1, 18, 1, Q("25.632802 mm")),
    Sketcher.Constraint("DistanceX", 29, 1, 29, 2, Q("2.292893 mm")),
    Sketcher.Constraint("DistanceY", 21, 2, 21, 1, Q("4.710786 mm")),
    Sketcher.Constraint("DistanceY", 23, 1, 23, 2, Q("2.296573 mm")),
    Sketcher.Constraint("DistanceY", 22, 3, -1, 1, Q("23.705412 mm")),
    Sketcher.Constraint("DistanceY", 36, 3, -1, 1, Q("6.667541 mm")),
    Sketcher.Constraint("DistanceY", 39, 3, -1, 1, Q("14.81026 mm")),
    Sketcher.Constraint("DistanceX", -1, 1, 22, 3, Q("25.858943 mm")),
])
pocket2 = body.newObject("PartDesign::Pocket", "Pocket001")
pocket2.Profile = sketch3
pocket2.Length = 1
pocket2.Reversed = True

# Sketch on XY plane
sketch4 = body.newObject("Sketcher::SketchObject", "Sketch003")
sketch4.AttachmentSupport = (doc.getObject("XY_Plane"), [""])
sketch4.MapMode = "FlatFace"
sketch4.addGeometry([
    Part.LineSegment(V(19, 0, 0), V(24, 0, 0)),  # 0
    Part.LineSegment(V(24, 0, 0), V(24, 1, 0)),  # 1
    Part.ArcOfCircle(Part.Circle(V(23.5, 1, 0), V(0, 0, 1), 0.5), math.radians(0), math.radians(90)),  # 2
    Part.LineSegment(V(23.5, 1.5, 0), V(19.5, 1.5, 0)),  # 3
    Part.ArcOfCircle(Part.Circle(V(19.5, 1, 0), V(0, 0, 1), 0.5), math.radians(90), math.radians(180)),  # 4
    Part.LineSegment(V(19, 1, 0), V(19, 0, 0)),  # 5
], False)
sketch4.addConstraint([
    Sketcher.Constraint("Coincident", 0, 2, 1, 1),
    Sketcher.Constraint("Tangent", 1, 2, 2, 1),
    Sketcher.Constraint("Tangent", 2, 2, 3, 1),
    Sketcher.Constraint("Tangent", 3, 2, 4, 1),
    Sketcher.Constraint("Tangent", 4, 2, 5, 1),
    Sketcher.Constraint("Coincident", 5, 2, 0, 1),
    Sketcher.Constraint("Horizontal", 0),
    Sketcher.Constraint("Vertical", 1),
    Sketcher.Constraint("Horizontal", 3),
    Sketcher.Constraint("Vertical", 5),
    Sketcher.Constraint("Equal", 2, 4),
    Sketcher.Constraint("PointOnObject", 0, 2, -1),
    Sketcher.Constraint("Radius", 2, Q("0.5 mm")),
    Sketcher.Constraint("DistanceX", 0, 1, 0, 2, Q("5 mm")),
    Sketcher.Constraint("DistanceY", 1, 1, 1, 2, Q("1 mm")),
    Sketcher.Constraint("DistanceX", -1, 1, 0, 2, Q("24 mm")),
])
pocket3 = body.newObject("PartDesign::Pocket", "Pocket002")
pocket3.Profile = sketch4
pocket3.Length = 2

# Sketch on XZ plane
sketch5 = body.newObject("Sketcher::SketchObject", "Sketch004")
sketch5.AttachmentSupport = (doc.getObject("XZ_Plane"), [""])
sketch5.MapMode = "FlatFace"
sketch5.AttachmentOffset = App.Placement(V(0, 0, -15), App.Rotation())
sketch5.addGeometry([
    Part.Circle(V(7, -7, 0), V(0, 0, 1), 1.2),
    Part.Circle(V(11.3, -23, 0), V(0, 0, 1), 1.2),
    Part.Circle(V(31.7, -23, 0), V(0, 0, 1), 1.2),
    Part.Circle(V(36, -7, 0), V(0, 0, 1), 1.2),
], False)
sketch5.addConstraint([
    Sketcher.Constraint("Equal", 0, 1),
    Sketcher.Constraint("Equal", 1, 2),
    Sketcher.Constraint("Equal", 2, 3),
    Sketcher.Constraint("Horizontal", 1, 3, 2, 3),
    Sketcher.Constraint("Horizontal", 0, 3, 3, 3),
    Sketcher.Constraint("Diameter", 0, Q("2.5 mm")),
    Sketcher.Constraint("DistanceX", -1, 1, 0, 3, Q("7 mm")),
    Sketcher.Constraint("DistanceY", 0, 3, -1, 1, Q("7 mm")),
    Sketcher.Constraint("DistanceX", -1, 1, 3, 3, Q("36 mm")),
    Sketcher.Constraint("DistanceX", -1, 1, 1, 3, Q("11.34 mm")),
    Sketcher.Constraint("DistanceY", 1, 3, -1, 1, Q("22.96 mm")),
    Sketcher.Constraint("DistanceX", -1, 1, 2, 3, Q("31.66 mm")),
])
pocket4 = body.newObject("PartDesign::Pocket", "Pocket003")
pocket4.Profile = sketch5
pocket4.Length = 3
pocket4.Reversed = True

# Sketch on XZ plane
sketch6 = body.newObject("Sketcher::SketchObject", "Sketch005")
sketch6.AttachmentSupport = (doc.getObject("XZ_Plane"), [""])
sketch6.MapMode = "FlatFace"
sketch6.AttachmentOffset = App.Placement(V(0, 0, -15), App.Rotation())
sketch6.addGeometry([
    Part.Circle(V(7, -7, 0), V(0, 0, 1), 2.8),
    Part.Circle(V(11.3, -23, 0), V(0, 0, 1), 2.8),
    Part.Circle(V(36, -7, 0), V(0, 0, 1), 2.8),
    Part.Circle(V(31.7, -23, 0), V(0, 0, 1), 2.8),
], False)
sketch6.addConstraint([
    Sketcher.Constraint("Equal", 0, 1),
    Sketcher.Constraint("Equal", 1, 2),
    Sketcher.Constraint("Equal", 2, 3),
    Sketcher.Constraint("Horizontal", 0, 3, 2, 3),
    Sketcher.Constraint("Horizontal", 1, 3, 3, 3),
    Sketcher.Constraint("Diameter", 0, Q("5.5 mm")),
    Sketcher.Constraint("DistanceX", -1, 1, 0, 3, Q("7 mm")),
    Sketcher.Constraint("DistanceY", 0, 3, -1, 1, Q("7 mm")),
    Sketcher.Constraint("DistanceX", -1, 1, 2, 3, Q("36 mm")),
    Sketcher.Constraint("DistanceX", -1, 1, 1, 3, Q("11.34 mm")),
    Sketcher.Constraint("DistanceY", 1, 3, -1, 1, Q("22.96 mm")),
    Sketcher.Constraint("DistanceX", -1, 1, 3, 3, Q("31.66 mm")),
])
pocket5 = body.newObject("PartDesign::Pocket", "Pocket004")
pocket5.Profile = sketch6
pocket5.Length = 1
pocket5.Reversed = True

doc.recompute()
